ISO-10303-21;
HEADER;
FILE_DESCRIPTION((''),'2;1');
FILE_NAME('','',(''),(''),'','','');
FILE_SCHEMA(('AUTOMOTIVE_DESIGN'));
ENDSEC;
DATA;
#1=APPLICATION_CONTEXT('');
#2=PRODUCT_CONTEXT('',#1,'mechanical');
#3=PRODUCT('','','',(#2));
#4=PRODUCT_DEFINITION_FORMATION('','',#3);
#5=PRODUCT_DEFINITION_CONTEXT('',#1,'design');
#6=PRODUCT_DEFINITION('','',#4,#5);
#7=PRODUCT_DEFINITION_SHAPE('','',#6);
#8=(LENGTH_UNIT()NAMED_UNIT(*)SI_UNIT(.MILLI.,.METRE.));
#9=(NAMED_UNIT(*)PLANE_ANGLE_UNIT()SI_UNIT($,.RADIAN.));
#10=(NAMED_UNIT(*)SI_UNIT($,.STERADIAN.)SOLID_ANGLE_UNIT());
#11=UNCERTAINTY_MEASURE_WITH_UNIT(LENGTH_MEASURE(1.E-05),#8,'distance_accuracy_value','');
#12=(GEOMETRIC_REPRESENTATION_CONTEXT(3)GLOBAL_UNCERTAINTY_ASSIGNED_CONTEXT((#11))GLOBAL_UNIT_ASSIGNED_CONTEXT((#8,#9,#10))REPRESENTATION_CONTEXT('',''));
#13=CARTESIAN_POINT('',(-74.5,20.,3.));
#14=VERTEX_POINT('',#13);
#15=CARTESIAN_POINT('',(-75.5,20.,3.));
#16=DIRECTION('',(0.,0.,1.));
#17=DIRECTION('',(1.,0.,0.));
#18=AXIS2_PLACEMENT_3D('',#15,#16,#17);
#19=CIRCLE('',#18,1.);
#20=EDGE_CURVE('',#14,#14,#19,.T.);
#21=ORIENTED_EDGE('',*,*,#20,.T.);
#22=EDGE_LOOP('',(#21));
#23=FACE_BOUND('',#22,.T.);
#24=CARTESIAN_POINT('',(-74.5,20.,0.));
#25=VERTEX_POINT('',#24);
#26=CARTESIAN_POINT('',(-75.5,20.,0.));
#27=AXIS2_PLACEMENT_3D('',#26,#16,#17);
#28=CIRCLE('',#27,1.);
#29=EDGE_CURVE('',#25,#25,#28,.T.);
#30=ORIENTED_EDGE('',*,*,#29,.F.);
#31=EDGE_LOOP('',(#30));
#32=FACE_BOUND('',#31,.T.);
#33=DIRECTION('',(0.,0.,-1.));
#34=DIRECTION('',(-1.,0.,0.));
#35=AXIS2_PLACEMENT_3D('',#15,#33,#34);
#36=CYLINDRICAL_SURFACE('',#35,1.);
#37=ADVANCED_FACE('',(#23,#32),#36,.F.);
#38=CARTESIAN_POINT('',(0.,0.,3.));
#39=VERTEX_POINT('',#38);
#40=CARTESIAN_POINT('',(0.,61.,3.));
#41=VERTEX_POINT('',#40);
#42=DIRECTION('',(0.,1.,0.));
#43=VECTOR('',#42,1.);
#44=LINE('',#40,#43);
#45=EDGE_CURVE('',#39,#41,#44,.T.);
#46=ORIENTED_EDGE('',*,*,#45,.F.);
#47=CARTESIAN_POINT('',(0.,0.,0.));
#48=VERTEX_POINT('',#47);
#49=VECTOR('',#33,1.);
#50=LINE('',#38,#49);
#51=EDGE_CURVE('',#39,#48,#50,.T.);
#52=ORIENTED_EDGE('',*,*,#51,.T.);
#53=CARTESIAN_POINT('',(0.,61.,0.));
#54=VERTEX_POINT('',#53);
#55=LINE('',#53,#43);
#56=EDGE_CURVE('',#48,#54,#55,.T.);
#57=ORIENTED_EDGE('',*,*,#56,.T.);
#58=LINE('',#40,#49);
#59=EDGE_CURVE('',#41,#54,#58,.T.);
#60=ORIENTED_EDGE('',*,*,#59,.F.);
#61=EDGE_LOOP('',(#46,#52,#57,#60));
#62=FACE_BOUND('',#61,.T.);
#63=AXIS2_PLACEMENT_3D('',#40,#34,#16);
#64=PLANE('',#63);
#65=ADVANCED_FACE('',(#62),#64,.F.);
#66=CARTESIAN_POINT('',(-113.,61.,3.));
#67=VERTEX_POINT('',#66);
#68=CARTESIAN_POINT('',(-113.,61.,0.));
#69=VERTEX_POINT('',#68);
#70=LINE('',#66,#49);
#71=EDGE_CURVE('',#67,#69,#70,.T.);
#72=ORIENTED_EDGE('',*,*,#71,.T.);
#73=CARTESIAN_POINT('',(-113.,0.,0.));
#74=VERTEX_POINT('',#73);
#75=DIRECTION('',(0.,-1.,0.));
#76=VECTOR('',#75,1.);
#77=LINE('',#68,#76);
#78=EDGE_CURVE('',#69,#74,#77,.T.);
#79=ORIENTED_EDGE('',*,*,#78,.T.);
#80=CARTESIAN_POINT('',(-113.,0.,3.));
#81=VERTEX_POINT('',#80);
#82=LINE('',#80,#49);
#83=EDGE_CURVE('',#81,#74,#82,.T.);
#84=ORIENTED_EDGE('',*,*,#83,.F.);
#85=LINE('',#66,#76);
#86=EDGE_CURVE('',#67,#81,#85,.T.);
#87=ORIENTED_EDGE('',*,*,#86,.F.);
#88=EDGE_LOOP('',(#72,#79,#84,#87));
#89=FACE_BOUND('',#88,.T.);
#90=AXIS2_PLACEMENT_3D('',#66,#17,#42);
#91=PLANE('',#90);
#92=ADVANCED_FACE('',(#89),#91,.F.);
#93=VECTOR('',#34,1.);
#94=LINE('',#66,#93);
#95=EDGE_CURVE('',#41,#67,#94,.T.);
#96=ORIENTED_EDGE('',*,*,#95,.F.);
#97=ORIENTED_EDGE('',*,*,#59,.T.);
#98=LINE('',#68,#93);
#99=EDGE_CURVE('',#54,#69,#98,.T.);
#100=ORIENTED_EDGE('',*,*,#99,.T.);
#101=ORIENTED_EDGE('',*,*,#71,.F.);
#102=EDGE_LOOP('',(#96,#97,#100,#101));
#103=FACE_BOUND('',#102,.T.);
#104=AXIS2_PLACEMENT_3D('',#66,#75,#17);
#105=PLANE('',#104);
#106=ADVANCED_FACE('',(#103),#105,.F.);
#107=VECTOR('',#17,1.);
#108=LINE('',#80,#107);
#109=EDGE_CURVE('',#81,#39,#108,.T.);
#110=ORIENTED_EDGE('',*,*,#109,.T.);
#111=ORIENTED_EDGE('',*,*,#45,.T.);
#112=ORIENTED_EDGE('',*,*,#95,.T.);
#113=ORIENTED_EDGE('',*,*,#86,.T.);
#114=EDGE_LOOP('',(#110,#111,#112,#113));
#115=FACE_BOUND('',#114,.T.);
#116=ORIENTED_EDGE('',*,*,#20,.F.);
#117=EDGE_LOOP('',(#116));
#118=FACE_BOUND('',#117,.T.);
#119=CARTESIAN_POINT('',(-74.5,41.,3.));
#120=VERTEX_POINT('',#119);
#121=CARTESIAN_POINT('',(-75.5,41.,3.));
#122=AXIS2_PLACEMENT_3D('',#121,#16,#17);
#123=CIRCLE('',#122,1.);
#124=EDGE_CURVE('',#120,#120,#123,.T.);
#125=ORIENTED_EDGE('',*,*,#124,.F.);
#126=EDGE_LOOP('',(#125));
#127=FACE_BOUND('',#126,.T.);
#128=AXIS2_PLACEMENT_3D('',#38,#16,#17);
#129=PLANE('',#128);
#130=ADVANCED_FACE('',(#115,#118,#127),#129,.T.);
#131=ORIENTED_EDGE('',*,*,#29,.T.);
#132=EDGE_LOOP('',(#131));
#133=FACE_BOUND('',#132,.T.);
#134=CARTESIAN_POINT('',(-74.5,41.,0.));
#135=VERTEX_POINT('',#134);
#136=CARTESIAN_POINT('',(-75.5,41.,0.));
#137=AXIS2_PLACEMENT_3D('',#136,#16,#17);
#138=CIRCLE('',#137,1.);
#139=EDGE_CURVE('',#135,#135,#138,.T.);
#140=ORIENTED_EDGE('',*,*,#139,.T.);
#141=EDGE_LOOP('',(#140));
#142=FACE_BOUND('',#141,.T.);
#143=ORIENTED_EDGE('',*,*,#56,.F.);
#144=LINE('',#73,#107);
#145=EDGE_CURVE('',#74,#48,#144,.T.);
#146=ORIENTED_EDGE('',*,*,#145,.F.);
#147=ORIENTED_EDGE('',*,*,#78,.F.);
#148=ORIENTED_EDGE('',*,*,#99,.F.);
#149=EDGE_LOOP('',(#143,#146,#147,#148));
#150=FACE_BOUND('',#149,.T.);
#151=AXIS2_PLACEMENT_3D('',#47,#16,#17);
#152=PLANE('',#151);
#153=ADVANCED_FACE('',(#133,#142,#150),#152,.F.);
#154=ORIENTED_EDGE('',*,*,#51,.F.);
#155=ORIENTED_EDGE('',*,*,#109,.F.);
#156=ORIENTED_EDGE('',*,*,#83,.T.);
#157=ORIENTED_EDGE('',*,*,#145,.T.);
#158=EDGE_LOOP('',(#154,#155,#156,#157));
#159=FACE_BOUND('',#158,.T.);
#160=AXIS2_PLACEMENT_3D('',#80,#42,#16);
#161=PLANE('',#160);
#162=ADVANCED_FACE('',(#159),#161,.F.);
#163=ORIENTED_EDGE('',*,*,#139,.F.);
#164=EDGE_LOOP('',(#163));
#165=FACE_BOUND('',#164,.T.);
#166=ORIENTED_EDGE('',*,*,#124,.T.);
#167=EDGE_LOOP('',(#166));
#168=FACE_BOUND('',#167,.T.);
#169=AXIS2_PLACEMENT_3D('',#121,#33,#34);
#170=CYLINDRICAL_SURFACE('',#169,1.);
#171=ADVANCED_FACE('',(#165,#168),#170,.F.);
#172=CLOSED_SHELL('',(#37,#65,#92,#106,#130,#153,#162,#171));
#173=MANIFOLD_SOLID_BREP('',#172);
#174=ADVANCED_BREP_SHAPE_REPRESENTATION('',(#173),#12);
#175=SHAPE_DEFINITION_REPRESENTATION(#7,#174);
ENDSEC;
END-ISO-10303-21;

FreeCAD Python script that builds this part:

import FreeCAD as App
import Part
import Sketcher
from FreeCAD import Vector
Q = App.Units.Quantity

doc = App.newDocument("Part")
params = doc.addObject("Spreadsheet::Sheet", "Params")
for row, (alias, value) in enumerate([
    ("sketch1_diameter", "2 mm"),
    ("sketch1_width", "113 mm"),
    ("sketch1_height", "61 mm"),
    ("pad1_length", "3 mm"),
], start=1):
    params.set(f"A{row}", alias)
    params.set(f"B{row}", "=" + value)
    params.setAlias(f"B{row}", alias)

body = doc.addObject("PartDesign::Body", "Body")

sketch1 = body.newObject("Sketcher::SketchObject", "Sketch")
sketch1.AttachmentSupport = (doc.getObject("XY_Plane"), [""])
sketch1.MapMode = "FlatFace"
sketch1.addGeometry([
    Part.LineSegment(Vector(-113, 61, 0), Vector(-113, 0, 0)),
    Part.LineSegment(Vector(-113, 0, 0), Vector(0, 0, 0)),
    Part.LineSegment(Vector(0, 0, 0), Vector(0, 61, 0)),
    Part.LineSegment(Vector(0, 61, 0), Vector(-113, 61, 0)),
    Part.Circle(Vector(-75.5, 20, 0), Vector(0, 0, 1), 1),
    Part.Circle(Vector(-75.5, 41, 0), Vector(0, 0, 1), 1),
], False)
sketch1.addConstraint([
    Sketcher.Constraint("Coincident", 0, 2, 1, 1),
    Sketcher.Constraint("Coincident", 1, 2, 2, 1),
    Sketcher.Constraint("Coincident", 2, 2, 3, 1),
    Sketcher.Constraint("Coincident", 3, 2, 0, 1),
    Sketcher.Constraint("Vertical", 0),
    Sketcher.Constraint("Horizontal", 1),
    Sketcher.Constraint("Vertical", 2),
    Sketcher.Constraint("Horizontal", 3),
    Sketcher.Constraint("Coincident", 1, 2, -1, 1),
    Sketcher.Constraint("Equal", 4, 5),
    Sketcher.Constraint("Vertical", 4, 3, 5, 3),
    Sketcher.Constraint("Diameter", 4, Q("2 mm")),
    Sketcher.Constraint("DistanceX", 1, 1, 1, 2, Q("113 mm")),
    Sketcher.Constraint("DistanceY", 0, 2, 0, 1, Q("61 mm")),
    Sketcher.Constraint("DistanceY", -1, 1, 4, 3, Q("20 mm")),
    Sketcher.Constraint("DistanceY", -1, 1, 5, 3, Q("41 mm")),
    Sketcher.Constraint("DistanceX", 4, 3, -1, 1, Q("75.5 mm")),
])
sketch1.setExpression("Constraints[11]", "Params.sketch1_diameter")
sketch1.setExpression("Constraints[12]", "Params.sketch1_width")
sketch1.setExpression("Constraints[13]", "Params.sketch1_height")
pad1 = body.newObject("PartDesign::Pad", "Pad")
pad1.Profile = sketch1
pad1.setExpression("Length", "Params.pad1_length")

doc.recompute()
